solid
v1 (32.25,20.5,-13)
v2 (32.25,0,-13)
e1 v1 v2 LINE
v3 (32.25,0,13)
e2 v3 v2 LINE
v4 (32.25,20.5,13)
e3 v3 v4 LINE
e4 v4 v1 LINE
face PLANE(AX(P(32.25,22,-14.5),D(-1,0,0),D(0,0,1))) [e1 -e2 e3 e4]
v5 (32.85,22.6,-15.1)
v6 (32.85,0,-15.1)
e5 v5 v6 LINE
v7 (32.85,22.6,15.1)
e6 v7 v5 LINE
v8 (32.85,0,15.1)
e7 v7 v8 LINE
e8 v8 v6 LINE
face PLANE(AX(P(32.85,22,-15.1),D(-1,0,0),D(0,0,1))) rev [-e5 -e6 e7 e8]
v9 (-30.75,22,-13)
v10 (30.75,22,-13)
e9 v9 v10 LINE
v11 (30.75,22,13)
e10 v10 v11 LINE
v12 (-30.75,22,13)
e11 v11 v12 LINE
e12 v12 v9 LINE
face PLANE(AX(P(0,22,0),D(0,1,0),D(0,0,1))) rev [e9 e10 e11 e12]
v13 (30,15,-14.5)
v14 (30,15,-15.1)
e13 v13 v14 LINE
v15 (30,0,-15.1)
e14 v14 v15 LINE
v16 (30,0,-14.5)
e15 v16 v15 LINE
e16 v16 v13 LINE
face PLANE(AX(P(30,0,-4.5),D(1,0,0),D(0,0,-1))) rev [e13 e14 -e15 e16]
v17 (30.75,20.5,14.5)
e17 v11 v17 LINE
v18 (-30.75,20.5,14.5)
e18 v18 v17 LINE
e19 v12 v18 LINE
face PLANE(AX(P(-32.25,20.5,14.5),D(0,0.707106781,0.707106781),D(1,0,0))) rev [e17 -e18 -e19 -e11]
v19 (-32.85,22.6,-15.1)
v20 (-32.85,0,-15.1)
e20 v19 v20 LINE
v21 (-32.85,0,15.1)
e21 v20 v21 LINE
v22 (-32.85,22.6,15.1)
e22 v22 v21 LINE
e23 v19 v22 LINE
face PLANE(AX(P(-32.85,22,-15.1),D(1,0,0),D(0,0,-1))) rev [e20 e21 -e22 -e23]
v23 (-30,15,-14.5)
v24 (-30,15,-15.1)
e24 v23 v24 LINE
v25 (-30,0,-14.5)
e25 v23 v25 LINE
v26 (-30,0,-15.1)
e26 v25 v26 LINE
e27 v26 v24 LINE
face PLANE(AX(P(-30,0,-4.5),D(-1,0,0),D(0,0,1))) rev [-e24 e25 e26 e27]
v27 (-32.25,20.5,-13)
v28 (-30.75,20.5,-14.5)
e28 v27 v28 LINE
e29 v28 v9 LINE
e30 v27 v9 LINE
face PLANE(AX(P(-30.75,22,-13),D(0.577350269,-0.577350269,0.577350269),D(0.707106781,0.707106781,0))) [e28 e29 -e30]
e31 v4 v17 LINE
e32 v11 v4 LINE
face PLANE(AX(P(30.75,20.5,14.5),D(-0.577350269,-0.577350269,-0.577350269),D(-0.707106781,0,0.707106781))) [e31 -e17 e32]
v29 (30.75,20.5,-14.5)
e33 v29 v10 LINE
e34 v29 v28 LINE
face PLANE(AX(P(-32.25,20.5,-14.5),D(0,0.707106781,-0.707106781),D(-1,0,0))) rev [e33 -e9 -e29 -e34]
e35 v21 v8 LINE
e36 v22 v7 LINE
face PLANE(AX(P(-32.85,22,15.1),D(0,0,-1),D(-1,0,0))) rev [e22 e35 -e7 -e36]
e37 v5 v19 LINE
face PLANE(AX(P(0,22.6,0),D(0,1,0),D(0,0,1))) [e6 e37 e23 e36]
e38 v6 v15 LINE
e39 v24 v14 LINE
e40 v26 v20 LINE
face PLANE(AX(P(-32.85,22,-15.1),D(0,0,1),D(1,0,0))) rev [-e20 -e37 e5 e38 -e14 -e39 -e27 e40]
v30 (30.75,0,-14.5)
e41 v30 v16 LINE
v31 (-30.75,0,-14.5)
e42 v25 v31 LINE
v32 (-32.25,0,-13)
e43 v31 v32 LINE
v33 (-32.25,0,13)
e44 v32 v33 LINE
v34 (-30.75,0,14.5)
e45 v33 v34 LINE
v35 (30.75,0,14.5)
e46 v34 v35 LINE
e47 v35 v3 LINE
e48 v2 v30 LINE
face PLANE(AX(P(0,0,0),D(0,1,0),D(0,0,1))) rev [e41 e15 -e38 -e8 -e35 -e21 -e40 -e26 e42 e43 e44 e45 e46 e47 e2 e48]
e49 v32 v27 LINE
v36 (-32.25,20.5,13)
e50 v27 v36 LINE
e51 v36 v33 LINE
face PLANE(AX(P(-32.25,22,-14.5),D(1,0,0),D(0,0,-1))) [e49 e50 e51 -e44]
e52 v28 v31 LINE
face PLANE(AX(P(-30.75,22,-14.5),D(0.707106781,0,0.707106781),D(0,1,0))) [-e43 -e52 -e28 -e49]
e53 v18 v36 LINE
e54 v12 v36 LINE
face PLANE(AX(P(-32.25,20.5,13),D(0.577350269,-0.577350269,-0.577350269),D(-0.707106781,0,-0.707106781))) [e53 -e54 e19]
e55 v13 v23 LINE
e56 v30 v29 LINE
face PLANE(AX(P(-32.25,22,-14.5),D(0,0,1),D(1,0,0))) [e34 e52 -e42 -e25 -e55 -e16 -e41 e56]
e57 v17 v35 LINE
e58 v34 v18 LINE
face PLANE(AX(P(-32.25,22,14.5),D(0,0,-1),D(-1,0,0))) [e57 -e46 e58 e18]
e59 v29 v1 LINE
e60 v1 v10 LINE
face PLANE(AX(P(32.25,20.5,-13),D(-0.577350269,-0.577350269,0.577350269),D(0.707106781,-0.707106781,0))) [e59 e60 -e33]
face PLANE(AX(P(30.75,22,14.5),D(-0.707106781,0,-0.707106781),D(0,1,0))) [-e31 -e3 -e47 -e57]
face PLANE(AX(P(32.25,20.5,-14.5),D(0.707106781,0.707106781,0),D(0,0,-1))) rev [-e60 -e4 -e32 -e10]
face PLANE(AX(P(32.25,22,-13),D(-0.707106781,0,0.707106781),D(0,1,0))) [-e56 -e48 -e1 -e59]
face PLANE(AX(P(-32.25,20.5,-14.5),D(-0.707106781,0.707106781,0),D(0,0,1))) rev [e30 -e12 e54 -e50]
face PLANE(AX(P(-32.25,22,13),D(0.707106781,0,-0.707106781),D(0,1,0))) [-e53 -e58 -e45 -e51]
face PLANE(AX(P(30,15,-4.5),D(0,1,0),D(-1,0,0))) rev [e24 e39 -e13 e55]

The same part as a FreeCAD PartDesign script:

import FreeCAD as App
import Part
import Sketcher


def edges_at(feature, points):
    """Names of the edges that pass closest to the given points."""
    edges = feature.Shape.Edges
    near = lambda p: min(range(len(edges)), key=lambda i: edges[i].distToShape(Part.Vertex(*p))[0])
    return sorted({f"Edge{near(p) + 1}" for p in points})


def add_polygon(sketch, points):
    """Adds a closed chain of lines whose ends are joined by coincident constraints."""
    first, n = sketch.GeometryCount, len(points)
    for a, b in zip(points, points[1:] + points[:1]):
        sketch.addGeometry(Part.LineSegment(App.Vector(*a, 0), App.Vector(*b, 0)), False)
    for i in range(n):
        sketch.addConstraint(Sketcher.Constraint("Coincident", first + i, 2, first + (i + 1) % n, 1))

doc = App.newDocument("Part")
body = doc.addObject("PartDesign::Body", "Body")

sketch1 = body.newObject("Sketcher::SketchObject", "Sketch")
sketch1.AttachmentSupport = (doc.getObject("XZ_Plane"), [""])
sketch1.MapMode = "FlatFace"
add_polygon(sketch1, [(-33, -15), (-33, 15), (33, 15), (33, -15)])
add_polygon(sketch1, [(32, 14), (-32, 14), (-32, -14), (32, -14)])
sketch1.addConstraint([
    Sketcher.Constraint("Vertical", 0),
    Sketcher.Constraint("Horizontal", 1),
    Sketcher.Constraint("Vertical", 2),
    Sketcher.Constraint("Horizontal", 3),
    Sketcher.Constraint("Horizontal", 4),
    Sketcher.Constraint("Vertical", 5),
    Sketcher.Constraint("Horizontal", 6),
    Sketcher.Constraint("Vertical", 7),
    Sketcher.Constraint("Symmetric", 0, 2, 2, 2, -1, 1),
    Sketcher.Constraint("Symmetric", 4, 2, 6, 2, -1, 1),
    Sketcher.Constraint("DistanceY", 5, 2, 5, 1, 29.0),
    Sketcher.Constraint("DistanceX", 1, 1, 1, 2, 65.7),
    Sketcher.Constraint("DistanceX", 4, 2, 4, 1, 64.5),
    Sketcher.Constraint("DistanceY", 0, 1, 0, 2, 30.2),
])
pad1 = body.newObject("PartDesign::Pad", "Pad")
pad1.Profile = sketch1
pad1.Length = 22
pad1.Reversed = True

sketch2 = body.newObject("Sketcher::SketchObject", "Sketch001")
sketch2.AttachmentSupport = (doc.getObject("XZ_Plane"), [""])
sketch2.MapMode = "FlatFace"
sketch2.AttachmentOffset = App.Placement(App.Vector(0, 0, -22), App.Rotation())
add_polygon(sketch2, [(-33, -15), (-33, 15), (33, 15), (33, -15)])
sketch2.addConstraint([
    Sketcher.Constraint("Vertical", 0),
    Sketcher.Constraint("Horizontal", 1),
    Sketcher.Constraint("Vertical", 2),
    Sketcher.Constraint("Horizontal", 3),
    Sketcher.Constraint("Symmetric", 0, 2, 2, 2, -1, 1),
    Sketcher.Constraint("DistanceX", 1, 1, 1, 2, 65.7),
    Sketcher.Constraint("DistanceY", 0, 1, 0, 2, 30.2),
])
pad2 = body.newObject("PartDesign::Pad", "Pad001")
pad2.Profile = sketch2
pad2.Length = 0.6
pad2.Reversed = True

sketch3 = body.newObject("Sketcher::SketchObject", "Sketch002")
sketch3.AttachmentSupport = (doc.getObject("XY_Plane"), [""])
sketch3.MapMode = "FlatFace"
sketch3.AttachmentOffset = App.Placement(App.Vector(0, 0, -15.1), App.Rotation())
add_polygon(sketch3, [(30, 15), (30, 0), (-30, 0), (-30, 15)])
sketch3.addConstraint([
    Sketcher.Constraint("Vertical", 0),
    Sketcher.Constraint("Horizontal", 1),
    Sketcher.Constraint("Vertical", 2),
    Sketcher.Constraint("Horizontal", 3),
    Sketcher.Constraint("Symmetric", 0, 2, 1, 2, -1, 1),
    Sketcher.Constraint("DistanceX", 1, 2, 1, 1, 60.0),
    Sketcher.Constraint("DistanceY", 0, 2, 0, 1, 15.0),
])
pocket1 = body.newObject("PartDesign::Pocket", "Pocket")
pocket1.Profile = sketch3
pocket1.Length = 10.6
pocket1.Reversed = True
doc.recompute()

chamfer = body.newObject("PartDesign::Chamfer", "Chamfer")
chamfer.Base = (pocket1, edges_at(pocket1, [
    (32.25, 11, 14.5),
    (32.25, 11, -14.5),
    (-32.25, 11, -14.5),
    (-32.25, 11, 14.5),
    (32.25, 22, 0),
    (0, 22, -14.5),
    (-32.25, 22, 0),
    (0, 22, 14.5),
]))
chamfer.Size = 1.5

doc.recompute()
